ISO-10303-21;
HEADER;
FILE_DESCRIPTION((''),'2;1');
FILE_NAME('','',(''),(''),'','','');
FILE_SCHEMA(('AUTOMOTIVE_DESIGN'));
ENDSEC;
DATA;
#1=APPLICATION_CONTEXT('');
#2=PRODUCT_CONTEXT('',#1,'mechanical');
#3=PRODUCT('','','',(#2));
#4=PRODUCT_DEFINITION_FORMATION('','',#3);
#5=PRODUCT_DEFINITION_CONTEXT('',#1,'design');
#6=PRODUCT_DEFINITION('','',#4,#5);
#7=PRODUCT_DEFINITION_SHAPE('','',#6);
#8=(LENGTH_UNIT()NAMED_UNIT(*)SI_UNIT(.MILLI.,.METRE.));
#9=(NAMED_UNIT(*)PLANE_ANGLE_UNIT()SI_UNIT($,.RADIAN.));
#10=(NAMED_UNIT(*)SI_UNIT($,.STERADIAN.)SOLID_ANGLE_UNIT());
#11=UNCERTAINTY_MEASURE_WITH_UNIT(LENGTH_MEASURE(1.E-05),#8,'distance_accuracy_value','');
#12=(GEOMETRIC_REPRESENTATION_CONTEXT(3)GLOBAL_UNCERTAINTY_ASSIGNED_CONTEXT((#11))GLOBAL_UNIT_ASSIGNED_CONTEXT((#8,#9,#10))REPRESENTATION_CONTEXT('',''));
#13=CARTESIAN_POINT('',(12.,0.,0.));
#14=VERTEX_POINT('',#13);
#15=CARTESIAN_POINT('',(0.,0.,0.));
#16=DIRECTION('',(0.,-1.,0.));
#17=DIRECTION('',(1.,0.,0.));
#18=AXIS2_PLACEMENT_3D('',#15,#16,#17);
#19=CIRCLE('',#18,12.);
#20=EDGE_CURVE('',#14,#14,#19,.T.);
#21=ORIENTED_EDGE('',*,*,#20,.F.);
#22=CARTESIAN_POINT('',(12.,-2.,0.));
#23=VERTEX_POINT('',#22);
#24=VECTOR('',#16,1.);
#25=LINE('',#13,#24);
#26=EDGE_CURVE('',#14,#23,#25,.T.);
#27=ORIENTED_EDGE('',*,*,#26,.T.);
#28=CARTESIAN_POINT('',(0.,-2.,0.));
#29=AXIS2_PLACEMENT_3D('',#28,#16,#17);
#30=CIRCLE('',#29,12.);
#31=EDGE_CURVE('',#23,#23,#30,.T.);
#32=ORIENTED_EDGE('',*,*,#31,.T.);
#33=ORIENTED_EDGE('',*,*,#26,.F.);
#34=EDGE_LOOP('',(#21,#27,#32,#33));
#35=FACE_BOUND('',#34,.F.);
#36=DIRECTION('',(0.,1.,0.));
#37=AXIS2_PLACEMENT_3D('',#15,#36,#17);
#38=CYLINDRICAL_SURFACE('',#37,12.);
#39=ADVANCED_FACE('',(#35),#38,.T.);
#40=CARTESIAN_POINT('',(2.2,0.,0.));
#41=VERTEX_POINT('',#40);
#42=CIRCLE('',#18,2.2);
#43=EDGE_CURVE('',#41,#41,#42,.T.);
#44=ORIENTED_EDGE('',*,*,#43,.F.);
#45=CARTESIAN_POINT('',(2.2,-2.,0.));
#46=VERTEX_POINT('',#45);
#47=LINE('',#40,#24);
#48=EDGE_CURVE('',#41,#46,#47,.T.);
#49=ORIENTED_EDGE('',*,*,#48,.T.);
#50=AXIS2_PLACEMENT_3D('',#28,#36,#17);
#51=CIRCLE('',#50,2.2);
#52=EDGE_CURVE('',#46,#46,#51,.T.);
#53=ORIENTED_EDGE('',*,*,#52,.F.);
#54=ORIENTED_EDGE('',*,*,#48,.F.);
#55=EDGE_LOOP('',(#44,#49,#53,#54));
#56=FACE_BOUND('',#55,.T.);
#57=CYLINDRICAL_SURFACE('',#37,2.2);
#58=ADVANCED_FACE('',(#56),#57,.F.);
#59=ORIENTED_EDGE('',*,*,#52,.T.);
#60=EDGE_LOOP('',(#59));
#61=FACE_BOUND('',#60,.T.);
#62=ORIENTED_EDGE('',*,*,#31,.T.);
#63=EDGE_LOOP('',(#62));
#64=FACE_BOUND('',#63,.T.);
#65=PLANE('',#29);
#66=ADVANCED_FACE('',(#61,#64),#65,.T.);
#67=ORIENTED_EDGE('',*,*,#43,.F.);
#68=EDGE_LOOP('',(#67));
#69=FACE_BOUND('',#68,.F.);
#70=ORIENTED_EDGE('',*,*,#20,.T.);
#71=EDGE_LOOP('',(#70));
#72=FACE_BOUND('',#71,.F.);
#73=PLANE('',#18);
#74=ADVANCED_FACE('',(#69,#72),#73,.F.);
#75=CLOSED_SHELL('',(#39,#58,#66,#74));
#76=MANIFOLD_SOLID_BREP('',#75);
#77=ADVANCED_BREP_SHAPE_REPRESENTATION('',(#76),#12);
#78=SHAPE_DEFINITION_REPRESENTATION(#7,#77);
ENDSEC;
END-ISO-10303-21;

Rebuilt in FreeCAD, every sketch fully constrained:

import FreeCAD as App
import Part
import Sketcher
from FreeCAD import Vector
Q = App.Units.Quantity

doc = App.newDocument("Part")
body = doc.addObject("PartDesign::Body", "Body")

sketch1 = doc.addObject("Sketcher::SketchObject", "Sketch")
body.addObject(sketch1)
sketch1.AttachmentSupport = (doc.XZ_Plane, [""])
sketch1.MapMode = "FlatFace"
sketch1.addGeometry(Part.Circle(Vector(0, 0, 0), Vector(0, 0, 1), 2.2), False)
sketch1.addConstraint([
    Sketcher.Constraint("Coincident", 0, 3, -1, 1),
    Sketcher.Constraint("Diameter", 0, Q("4.4 mm")),
])
pad1 = doc.addObject("PartDesign::Pad", "Pad")
body.addObject(pad1)
pad1.Profile = sketch1
pad1.Length = 20
body2 = doc.addObject("PartDesign::Body", "Body001")

sketch2 = doc.addObject("Sketcher::SketchObject", "Sketch001")
body2.addObject(sketch2)
sketch2.AttachmentSupport = (doc.getObject("XZ_Plane001"), [""])
sketch2.MapMode = "FlatFace"
sketch2.addGeometry(Part.Circle(Vector(0, 0, 0), Vector(0, 0, 1), 12), False)
sketch2.addConstraint([
    Sketcher.Constraint("Coincident", 0, 3, -1, 1),
    Sketcher.Constraint("Diameter", 0, Q("24 mm")),
])
pad2 = doc.addObject("PartDesign::Pad", "Pad001")
body2.addObject(pad2)
pad2.Profile = sketch2
pad2.Length = 2
doc.recompute()

boolean = doc.addObject("PartDesign::Boolean", "Boolean")
body2.addObject(boolean)
boolean.Type = "Cut"
boolean.addObjects([body])

doc.recompute()
